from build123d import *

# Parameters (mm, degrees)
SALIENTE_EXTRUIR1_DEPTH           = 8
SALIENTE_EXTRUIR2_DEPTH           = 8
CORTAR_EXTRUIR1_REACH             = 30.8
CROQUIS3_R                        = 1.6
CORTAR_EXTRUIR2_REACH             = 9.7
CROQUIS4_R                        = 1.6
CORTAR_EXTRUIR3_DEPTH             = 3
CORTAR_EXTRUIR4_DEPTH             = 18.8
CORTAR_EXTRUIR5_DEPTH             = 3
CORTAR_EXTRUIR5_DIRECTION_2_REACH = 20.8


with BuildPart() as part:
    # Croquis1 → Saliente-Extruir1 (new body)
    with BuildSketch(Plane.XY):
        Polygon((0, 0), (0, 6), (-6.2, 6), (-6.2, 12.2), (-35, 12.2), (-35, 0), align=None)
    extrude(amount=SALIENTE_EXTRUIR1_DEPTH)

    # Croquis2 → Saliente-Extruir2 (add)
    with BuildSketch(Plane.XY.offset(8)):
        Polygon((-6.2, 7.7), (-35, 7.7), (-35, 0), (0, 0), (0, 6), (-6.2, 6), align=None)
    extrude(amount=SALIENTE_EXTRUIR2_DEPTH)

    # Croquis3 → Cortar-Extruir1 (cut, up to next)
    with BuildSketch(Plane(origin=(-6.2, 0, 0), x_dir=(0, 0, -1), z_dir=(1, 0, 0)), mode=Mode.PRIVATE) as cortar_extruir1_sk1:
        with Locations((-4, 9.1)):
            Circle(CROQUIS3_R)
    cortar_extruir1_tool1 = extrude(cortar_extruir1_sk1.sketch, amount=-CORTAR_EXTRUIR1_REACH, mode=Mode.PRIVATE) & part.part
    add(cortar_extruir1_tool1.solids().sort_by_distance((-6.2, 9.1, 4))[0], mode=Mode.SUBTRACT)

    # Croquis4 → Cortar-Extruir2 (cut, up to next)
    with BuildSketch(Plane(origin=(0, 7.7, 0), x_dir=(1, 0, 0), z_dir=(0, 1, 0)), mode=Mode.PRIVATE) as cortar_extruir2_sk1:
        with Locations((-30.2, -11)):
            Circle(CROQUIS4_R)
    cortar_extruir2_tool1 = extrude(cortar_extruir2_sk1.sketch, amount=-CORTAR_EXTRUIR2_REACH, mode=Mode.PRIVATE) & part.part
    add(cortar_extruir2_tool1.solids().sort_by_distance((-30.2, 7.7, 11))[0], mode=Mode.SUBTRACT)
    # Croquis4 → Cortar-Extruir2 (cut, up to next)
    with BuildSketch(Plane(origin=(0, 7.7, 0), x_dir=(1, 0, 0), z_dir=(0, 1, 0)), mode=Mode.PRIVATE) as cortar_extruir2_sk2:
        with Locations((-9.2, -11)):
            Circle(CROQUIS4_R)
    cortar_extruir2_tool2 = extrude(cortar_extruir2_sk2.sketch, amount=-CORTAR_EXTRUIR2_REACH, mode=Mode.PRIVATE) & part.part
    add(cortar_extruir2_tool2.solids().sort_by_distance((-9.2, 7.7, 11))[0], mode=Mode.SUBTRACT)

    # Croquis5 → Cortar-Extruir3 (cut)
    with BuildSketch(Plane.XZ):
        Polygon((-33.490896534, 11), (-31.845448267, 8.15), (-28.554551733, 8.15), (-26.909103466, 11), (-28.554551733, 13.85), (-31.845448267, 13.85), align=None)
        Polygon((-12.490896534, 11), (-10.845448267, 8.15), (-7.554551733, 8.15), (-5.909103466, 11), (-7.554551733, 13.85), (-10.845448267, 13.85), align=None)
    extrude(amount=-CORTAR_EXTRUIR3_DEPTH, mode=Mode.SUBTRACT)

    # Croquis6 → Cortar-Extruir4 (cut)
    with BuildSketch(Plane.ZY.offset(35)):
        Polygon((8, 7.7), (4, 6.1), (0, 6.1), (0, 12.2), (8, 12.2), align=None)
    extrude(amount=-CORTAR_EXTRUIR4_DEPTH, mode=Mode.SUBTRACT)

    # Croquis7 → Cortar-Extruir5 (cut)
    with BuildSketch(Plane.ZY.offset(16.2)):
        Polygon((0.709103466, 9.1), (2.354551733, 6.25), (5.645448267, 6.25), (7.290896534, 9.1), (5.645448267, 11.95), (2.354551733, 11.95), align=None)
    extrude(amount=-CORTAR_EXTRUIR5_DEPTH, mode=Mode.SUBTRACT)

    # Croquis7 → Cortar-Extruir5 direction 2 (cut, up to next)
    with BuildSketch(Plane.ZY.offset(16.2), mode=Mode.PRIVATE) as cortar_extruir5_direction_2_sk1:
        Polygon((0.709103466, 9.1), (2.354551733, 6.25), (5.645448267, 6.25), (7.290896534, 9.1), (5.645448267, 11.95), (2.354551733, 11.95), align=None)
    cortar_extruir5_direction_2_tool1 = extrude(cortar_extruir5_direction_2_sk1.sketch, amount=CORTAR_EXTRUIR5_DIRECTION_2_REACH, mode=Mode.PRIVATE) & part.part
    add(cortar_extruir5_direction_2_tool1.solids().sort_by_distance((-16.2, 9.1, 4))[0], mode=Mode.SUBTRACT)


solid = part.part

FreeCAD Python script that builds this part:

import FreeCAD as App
import Part
import Sketcher
from FreeCAD import Vector
Q = App.Units.Quantity


def add_polygon(sketch, points):
    """Adds a closed chain of lines whose ends are joined by coincident constraints."""
    first, n = sketch.GeometryCount, len(points)
    for a, b in zip(points, points[1:] + points[:1]):
        sketch.addGeometry(Part.LineSegment(App.Vector(*a, 0), App.Vector(*b, 0)), False)
    for i in range(n):
        sketch.addConstraint(Sketcher.Constraint("Coincident", first + i, 2, first + (i + 1) % n, 1))

doc = App.newDocument("Part")
params = doc.addObject("Spreadsheet::Sheet", "Params")
for row, (alias, value) in enumerate([
    ("sketch1_width", "35 mm"),
    ("sketch1_height", "6 mm"),
    ("sketch1_width2", "6.2 mm"),
    ("pad1_length", "8 mm"),
    ("sketch2_width", "35 mm"),
    ("sketch2_height", "6 mm"),
    ("sketch2_width2", "28.8 mm"),
    ("sketch2_height2", "7.7 mm"),
    ("pad2_length", "8 mm"),
    ("sketch3_diameter", "3.2 mm"),
    ("sketch4_diameter", "3.2 mm"),
    ("sketch5_diameter", "3.2 mm"),
    ("pocket4_length", "3 mm"),
    ("sketch7_height", "8 mm"),
    ("sketch7_height2", "4 mm"),
    ("sketch7_width", "4.5 mm"),
    ("sketch7_width2", "6.1 mm"),
    ("pocket5_length", "18.8 mm"),
    ("pocket6_length", "3 mm"),
    ("pocket7_length", "18.8 mm"),
], start=1):
    params.set(f"A{row}", alias)
    params.set(f"B{row}", "=" + value)
    params.setAlias(f"B{row}", alias)

body = doc.addObject("PartDesign::Body", "Body")

# Sketch on XY plane
sketch1 = body.newObject("Sketcher::SketchObject", "Sketch")
sketch1.AttachmentSupport = (doc.getObject("XY_Plane"), [""])
sketch1.MapMode = "FlatFace"
add_polygon(sketch1, [(0, 0), (0, 6), (-6.2, 6), (-6.2, 12.2), (-35, 12.2), (-35, 0)])  # lines 0-5
sketch1.addConstraint([
    Sketcher.Constraint("Vertical", 0),
    Sketcher.Constraint("Horizontal", 1),
    Sketcher.Constraint("Vertical", 2),
    Sketcher.Constraint("Horizontal", 3),
    Sketcher.Constraint("Vertical", 4),
    Sketcher.Constraint("Horizontal", 5),
    Sketcher.Constraint("Coincident", 5, 2, -1, 1),
    Sketcher.Constraint("Equal", 1, 2),
    Sketcher.Constraint("DistanceX", 5, 1, 5, 2, 35.0),
    Sketcher.Constraint("DistanceY", 0, 1, 0, 2, 6.0),
    Sketcher.Constraint("DistanceX", 1, 2, 1, 1, 6.2),
])
sketch1.setExpression("Constraints[14]", "Params.sketch1_width")
sketch1.setExpression("Constraints[15]", "Params.sketch1_height")
sketch1.setExpression("Constraints[16]", "Params.sketch1_width2")
pad1 = body.newObject("PartDesign::Pad", "Pad")
pad1.Profile = sketch1
pad1.setExpression("Length", "Params.pad1_length")

# Sketch on XY plane
sketch2 = body.newObject("Sketcher::SketchObject", "Sketch001")
sketch2.AttachmentSupport = (doc.getObject("XY_Plane"), [""])
sketch2.MapMode = "FlatFace"
sketch2.AttachmentOffset = App.Placement(Vector(0, 0, 8), App.Rotation())
add_polygon(sketch2, [(-6.2, 7.7), (-35, 7.7), (-35, 0), (0, 0), (0, 6), (-6.2, 6)])  # lines 0-5
sketch2.addConstraint([
    Sketcher.Constraint("Horizontal", 0),
    Sketcher.Constraint("Vertical", 1),
    Sketcher.Constraint("Horizontal", 2),
    Sketcher.Constraint("Vertical", 3),
    Sketcher.Constraint("Horizontal", 4),
    Sketcher.Constraint("Vertical", 5),
    Sketcher.Constraint("Coincident", 2, 2, -1, 1),
    Sketcher.Constraint("DistanceX", 2, 1, 2, 2, 35.0),
    Sketcher.Constraint("DistanceY", 3, 1, 3, 2, 6.0),
    Sketcher.Constraint("DistanceX", 0, 2, 0, 1, 28.8),
    Sketcher.Constraint("DistanceY", 1, 2, 1, 1, 7.7),
])
sketch2.setExpression("Constraints[13]", "Params.sketch2_width")
sketch2.setExpression("Constraints[14]", "Params.sketch2_height")
sketch2.setExpression("Constraints[15]", "Params.sketch2_width2")
sketch2.setExpression("Constraints[16]", "Params.sketch2_height2")
pad2 = body.newObject("PartDesign::Pad", "Pad001")
pad2.Profile = sketch2
pad2.setExpression("Length", "Params.pad2_length")

# Sketch on YZ plane
sketch3 = body.newObject("Sketcher::SketchObject", "Sketch002")
sketch3.AttachmentSupport = (doc.getObject("YZ_Plane"), [""])
sketch3.MapMode = "FlatFace"
sketch3.AttachmentOffset = App.Placement(Vector(0, 0, -6.2), App.Rotation())
sketch3.addGeometry(Part.Circle(Vector(9.1, 4, 0), Vector(0, 0, 1), 1.6), False)
sketch3.addConstraint([
    Sketcher.Constraint("Diameter", 0, 3.2),
    Sketcher.Constraint("DistanceY", -1, 1, 0, 3, 4.0),
    Sketcher.Constraint("DistanceX", -1, 1, 0, 3, 9.1),
])
sketch3.setExpression("Constraints[0]", "Params.sketch3_diameter")
pocket1 = body.newObject("PartDesign::Pocket", "Pocket")
pocket1.Profile = sketch3
pocket1.Type = "UpToFirst"

# Sketch on XZ plane
sketch4 = body.newObject("Sketcher::SketchObject", "Sketch003")
sketch4.AttachmentSupport = (doc.getObject("XZ_Plane"), [""])
sketch4.MapMode = "FlatFace"
sketch4.AttachmentOffset = App.Placement(Vector(0, 0, -7.7), App.Rotation())
sketch4.addGeometry(Part.Circle(Vector(-30.2, 11, 0), Vector(0, 0, 1), 1.6), False)
sketch4.addConstraint([
    Sketcher.Constraint("Diameter", 0, 3.2),
    Sketcher.Constraint("DistanceY", -1, 1, 0, 3, 11.0),
    Sketcher.Constraint("DistanceX", 0, 3, -1, 1, 30.2),
])
sketch4.setExpression("Constraints[0]", "Params.sketch4_diameter")
pocket2 = body.newObject("PartDesign::Pocket", "Pocket001")
pocket2.Profile = sketch4
pocket2.Type = "UpToFirst"
pocket2.Reversed = True

# Sketch on XZ plane
sketch5 = body.newObject("Sketcher::SketchObject", "Sketch004")
sketch5.AttachmentSupport = (doc.getObject("XZ_Plane"), [""])
sketch5.MapMode = "FlatFace"
sketch5.AttachmentOffset = App.Placement(Vector(0, 0, -7.7), App.Rotation())
sketch5.addGeometry(Part.Circle(Vector(-9.2, 11, 0), Vector(0, 0, 1), 1.6), False)
sketch5.addConstraint([
    Sketcher.Constraint("Diameter", 0, 3.2),
    Sketcher.Constraint("DistanceY", -1, 1, 0, 3, 11.0),
    Sketcher.Constraint("DistanceX", 0, 3, -1, 1, 9.2),
])
sketch5.setExpression("Constraints[0]", "Params.sketch5_diameter")
pocket3 = body.newObject("PartDesign::Pocket", "Pocket002")
pocket3.Profile = sketch5
pocket3.Type = "UpToFirst"
pocket3.Reversed = True

# Sketch on XZ plane
sketch6 = body.newObject("Sketcher::SketchObject", "Sketch005")
sketch6.AttachmentSupport = (doc.getObject("XZ_Plane"), [""])
sketch6.MapMode = "FlatFace"
add_polygon(sketch6, [(-33.490897, 11), (-31.845448, 8.15), (-28.554552, 8.15), (-26.909103, 11), (-28.554552, 13.85), (-31.845448, 13.85)])  # lines 0-5
add_polygon(sketch6, [(-12.490897, 11), (-10.845448, 8.15), (-7.554552, 8.15), (-5.909103, 11), (-7.554552, 13.85), (-10.845448, 13.85)])  # lines 6-11
sketch6.addConstraint([
    Sketcher.Constraint("Horizontal", 1),
    Sketcher.Constraint("Horizontal", 4),
    Sketcher.Constraint("Horizontal", 7),
    Sketcher.Constraint("Horizontal", 10),
    Sketcher.Constraint("Parallel", 0, 3),
    Sketcher.Constraint("Parallel", 2, 5),
    Sketcher.Constraint("Parallel", 3, 6),
    Sketcher.Constraint("Parallel", 5, 8),
    Sketcher.Constraint("Parallel", 6, 9),
    Sketcher.Constraint("Parallel", 8, 11),
    Sketcher.Constraint("Horizontal", 2, 2, 5, 2),
    Sketcher.Constraint("Horizontal", 1, 2, 6, 2),
    Sketcher.Constraint("Horizontal", 5, 2, 8, 2),
    Sketcher.Constraint("Horizontal", 4, 2, 9, 2),
    Sketcher.Constraint("Horizontal", 8, 2, 11, 2),
    Sketcher.Constraint("Vertical", 1, 2, 3, 2),
    Sketcher.Constraint("Vertical", 0, 2, 4, 2),
    Sketcher.Constraint("Equal", 4, 7),
    Sketcher.Constraint("Angle", 0, Q("-60 deg")),
    Sketcher.Constraint("DistanceY", -1, 1, 2, 2, 11.0),
    Sketcher.Constraint("DistanceX", 0, 2, 6, 2, 21.0),
    Sketcher.Constraint("DistanceY", 1, 2, 3, 2, 5.7),
    Sketcher.Constraint("DistanceX", 1, 1, 1, 2, 3.290897),
    Sketcher.Constraint("DistanceX", 0, 2, -1, 1, 31.845448),
])
pocket4 = body.newObject("PartDesign::Pocket", "Pocket003")
pocket4.Profile = sketch6
pocket4.setExpression("Length", "Params.pocket4_length")

# Sketch on YZ plane
sketch7 = body.newObject("Sketcher::SketchObject", "Sketch006")
sketch7.AttachmentSupport = (doc.getObject("YZ_Plane"), [""])
sketch7.MapMode = "FlatFace"
sketch7.AttachmentOffset = App.Placement(Vector(0, 0, -35), App.Rotation())
add_polygon(sketch7, [(6.1, 4), (7.7, 8), (12.2, 8), (12.2, 0), (6.1, 0)])  # lines 0-4
sketch7.addConstraint([
    Sketcher.Constraint("Horizontal", 1),
    Sketcher.Constraint("Vertical", 2),
    Sketcher.Constraint("Horizontal", 3),
    Sketcher.Constraint("Vertical", 4),
    Sketcher.Constraint("PointOnObject", 2, 2, -1),
    Sketcher.Constraint("DistanceY", 2, 2, 2, 1, 8.0),
    Sketcher.Constraint("DistanceY", 4, 1, 4, 2, 4.0),
    Sketcher.Constraint("DistanceX", 1, 1, 1, 2, 4.5),
    Sketcher.Constraint("DistanceX", 3, 2, 3, 1, 6.1),
    Sketcher.Constraint("DistanceX", -1, 1, 0, 2, 7.7),
])
sketch7.setExpression("Constraints[10]", "Params.sketch7_height")
sketch7.setExpression("Constraints[11]", "Params.sketch7_height2")
sketch7.setExpression("Constraints[12]", "Params.sketch7_width")
sketch7.setExpression("Constraints[13]", "Params.sketch7_width2")
pocket5 = body.newObject("PartDesign::Pocket", "Pocket004")
pocket5.Profile = sketch7
pocket5.setExpression("Length", "Params.pocket5_length")
pocket5.Reversed = True

# Sketch on YZ plane
sketch8 = body.newObject("Sketcher::SketchObject", "Sketch007")
sketch8.AttachmentSupport = (doc.getObject("YZ_Plane"), [""])
sketch8.MapMode = "FlatFace"
sketch8.AttachmentOffset = App.Placement(Vector(0, 0, -16.2), App.Rotation())
add_polygon(sketch8, [(9.1, 0.709103), (6.25, 2.354552), (6.25, 5.645448), (9.1, 7.290897), (11.95, 5.645448), (11.95, 2.354552)])  # lines 0-5
sketch8.addConstraint([
    Sketcher.Constraint("Vertical", 1),
    Sketcher.Constraint("Vertical", 4),
    Sketcher.Constraint("Parallel", 0, 3),
    Sketcher.Constraint("Parallel", 2, 5),
    Sketcher.Constraint("Horizontal", 1, 2, 3, 2),
    Sketcher.Constraint("Horizontal", 0, 2, 4, 2),
    Sketcher.Constraint("Vertical", 2, 2, 5, 2),
    Sketcher.Constraint("Angle", 0, Q("150 deg")),
    Sketcher.Constraint("DistanceX", -1, 1, 2, 2, 9.1),
    Sketcher.Constraint("DistanceX", 1, 2, 3, 2, 5.7),
    Sketcher.Constraint("DistanceY", 1, 1, 1, 2, 3.290897),
    Sketcher.Constraint("DistanceY", -1, 1, 0, 2, 2.354552),
])
pocket6 = body.newObject("PartDesign::Pocket", "Pocket005")
pocket6.Profile = sketch8
pocket6.setExpression("Length", "Params.pocket6_length")
pocket6.Reversed = True

# Sketch on YZ plane
sketch9 = body.newObject("Sketcher::SketchObject", "Sketch008")
sketch9.AttachmentSupport = (doc.getObject("YZ_Plane"), [""])
sketch9.MapMode = "FlatFace"
sketch9.AttachmentOffset = App.Placement(Vector(0, 0, -16.2), App.Rotation())
add_polygon(sketch9, [(9.1, 0.709103), (6.25, 2.354552), (6.25, 5.645448), (9.1, 7.290897), (11.95, 5.645448), (11.95, 2.354552)])  # lines 0-5
sketch9.addConstraint([
    Sketcher.Constraint("Vertical", 1),
    Sketcher.Constraint("Vertical", 4),
    Sketcher.Constraint("Parallel", 0, 3),
    Sketcher.Constraint("Parallel", 2, 5),
    Sketcher.Constraint("Horizontal", 1, 2, 3, 2),
    Sketcher.Constraint("Horizontal", 0, 2, 4, 2),
    Sketcher.Constraint("Vertical", 2, 2, 5, 2),
    Sketcher.Constraint("Angle", 0, Q("150 deg")),
    Sketcher.Constraint("DistanceX", -1, 1, 2, 2, 9.1),
    Sketcher.Constraint("DistanceX", 1, 2, 3, 2, 5.7),
    Sketcher.Constraint("DistanceY", 1, 1, 1, 2, 3.290897),
    Sketcher.Constraint("DistanceY", -1, 1, 0, 2, 2.354552),
])
pocket7 = body.newObject("PartDesign::Pocket", "Pocket006")
pocket7.Profile = sketch9
pocket7.setExpression("Length", "Params.pocket7_length")

doc.recompute()
